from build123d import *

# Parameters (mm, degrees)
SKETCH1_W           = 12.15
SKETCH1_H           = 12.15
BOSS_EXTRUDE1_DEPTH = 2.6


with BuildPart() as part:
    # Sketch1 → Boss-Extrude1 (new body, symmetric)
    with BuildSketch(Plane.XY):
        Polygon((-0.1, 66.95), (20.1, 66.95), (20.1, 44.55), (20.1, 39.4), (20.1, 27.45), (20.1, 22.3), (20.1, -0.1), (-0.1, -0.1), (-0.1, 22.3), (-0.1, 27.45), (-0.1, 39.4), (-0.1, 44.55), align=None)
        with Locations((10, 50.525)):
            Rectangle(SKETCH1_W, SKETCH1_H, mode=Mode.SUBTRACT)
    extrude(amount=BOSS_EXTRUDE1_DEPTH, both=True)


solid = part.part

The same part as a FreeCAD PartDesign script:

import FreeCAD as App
import Part
import Sketcher
from FreeCAD import Vector


def add_polygon(sketch, points):
    """Adds a closed chain of lines whose ends are joined by coincident constraints."""
    first, n = sketch.GeometryCount, len(points)
    for a, b in zip(points, points[1:] + points[:1]):
        sketch.addGeometry(Part.LineSegment(App.Vector(*a, 0), App.Vector(*b, 0)), False)
    for i in range(n):
        sketch.addConstraint(Sketcher.Constraint("Coincident", first + i, 2, first + (i + 1) % n, 1))

doc = App.newDocument("Part")
body = doc.addObject("PartDesign::Body", "Body")

# Sketch on XY plane
sketch1 = body.newObject("Sketcher::SketchObject", "Sketch")
sketch1.AttachmentSupport = (doc.getObject("XY_Plane"), [""])
sketch1.MapMode = "FlatFace"
add_polygon(sketch1, [(20, 67), (0, 67), (0, 0), (20, 0)])  # lines 0-3
add_polygon(sketch1, [(4, 44), (4, 57), (16, 57), (16, 44)])  # lines 4-7
sketch1.addConstraint([
    Sketcher.Constraint("Horizontal", 0),
    Sketcher.Constraint("Vertical", 1),
    Sketcher.Constraint("Horizontal", 2),
    Sketcher.Constraint("Vertical", 3),
    Sketcher.Constraint("Vertical", 4),
    Sketcher.Constraint("Horizontal", 5),
    Sketcher.Constraint("Vertical", 6),
    Sketcher.Constraint("Horizontal", 7),
    Sketcher.Constraint("Equal", 7, 4),
    Sketcher.Constraint("DistanceX", 0, 2, 0, 1, 20.2),
    Sketcher.Constraint("DistanceX", 5, 1, 5, 2, 12.15),
    Sketcher.Constraint("DistanceY", 1, 2, 1, 1, 67.05),
    Sketcher.Constraint("DistanceX", 0, 2, -1, 1, 0.1),
    Sketcher.Constraint("DistanceY", 1, 2, -1, 1, 0.1),
    Sketcher.Constraint("DistanceY", -1, 1, 4, 2, 56.6),
    Sketcher.Constraint("DistanceX", -1, 1, 4, 2, 3.925),
])
pad1 = body.newObject("PartDesign::Pad", "Pad")
pad1.Profile = sketch1
pad1.Length = 5.2
pad1.Midplane = True

doc.recompute()
